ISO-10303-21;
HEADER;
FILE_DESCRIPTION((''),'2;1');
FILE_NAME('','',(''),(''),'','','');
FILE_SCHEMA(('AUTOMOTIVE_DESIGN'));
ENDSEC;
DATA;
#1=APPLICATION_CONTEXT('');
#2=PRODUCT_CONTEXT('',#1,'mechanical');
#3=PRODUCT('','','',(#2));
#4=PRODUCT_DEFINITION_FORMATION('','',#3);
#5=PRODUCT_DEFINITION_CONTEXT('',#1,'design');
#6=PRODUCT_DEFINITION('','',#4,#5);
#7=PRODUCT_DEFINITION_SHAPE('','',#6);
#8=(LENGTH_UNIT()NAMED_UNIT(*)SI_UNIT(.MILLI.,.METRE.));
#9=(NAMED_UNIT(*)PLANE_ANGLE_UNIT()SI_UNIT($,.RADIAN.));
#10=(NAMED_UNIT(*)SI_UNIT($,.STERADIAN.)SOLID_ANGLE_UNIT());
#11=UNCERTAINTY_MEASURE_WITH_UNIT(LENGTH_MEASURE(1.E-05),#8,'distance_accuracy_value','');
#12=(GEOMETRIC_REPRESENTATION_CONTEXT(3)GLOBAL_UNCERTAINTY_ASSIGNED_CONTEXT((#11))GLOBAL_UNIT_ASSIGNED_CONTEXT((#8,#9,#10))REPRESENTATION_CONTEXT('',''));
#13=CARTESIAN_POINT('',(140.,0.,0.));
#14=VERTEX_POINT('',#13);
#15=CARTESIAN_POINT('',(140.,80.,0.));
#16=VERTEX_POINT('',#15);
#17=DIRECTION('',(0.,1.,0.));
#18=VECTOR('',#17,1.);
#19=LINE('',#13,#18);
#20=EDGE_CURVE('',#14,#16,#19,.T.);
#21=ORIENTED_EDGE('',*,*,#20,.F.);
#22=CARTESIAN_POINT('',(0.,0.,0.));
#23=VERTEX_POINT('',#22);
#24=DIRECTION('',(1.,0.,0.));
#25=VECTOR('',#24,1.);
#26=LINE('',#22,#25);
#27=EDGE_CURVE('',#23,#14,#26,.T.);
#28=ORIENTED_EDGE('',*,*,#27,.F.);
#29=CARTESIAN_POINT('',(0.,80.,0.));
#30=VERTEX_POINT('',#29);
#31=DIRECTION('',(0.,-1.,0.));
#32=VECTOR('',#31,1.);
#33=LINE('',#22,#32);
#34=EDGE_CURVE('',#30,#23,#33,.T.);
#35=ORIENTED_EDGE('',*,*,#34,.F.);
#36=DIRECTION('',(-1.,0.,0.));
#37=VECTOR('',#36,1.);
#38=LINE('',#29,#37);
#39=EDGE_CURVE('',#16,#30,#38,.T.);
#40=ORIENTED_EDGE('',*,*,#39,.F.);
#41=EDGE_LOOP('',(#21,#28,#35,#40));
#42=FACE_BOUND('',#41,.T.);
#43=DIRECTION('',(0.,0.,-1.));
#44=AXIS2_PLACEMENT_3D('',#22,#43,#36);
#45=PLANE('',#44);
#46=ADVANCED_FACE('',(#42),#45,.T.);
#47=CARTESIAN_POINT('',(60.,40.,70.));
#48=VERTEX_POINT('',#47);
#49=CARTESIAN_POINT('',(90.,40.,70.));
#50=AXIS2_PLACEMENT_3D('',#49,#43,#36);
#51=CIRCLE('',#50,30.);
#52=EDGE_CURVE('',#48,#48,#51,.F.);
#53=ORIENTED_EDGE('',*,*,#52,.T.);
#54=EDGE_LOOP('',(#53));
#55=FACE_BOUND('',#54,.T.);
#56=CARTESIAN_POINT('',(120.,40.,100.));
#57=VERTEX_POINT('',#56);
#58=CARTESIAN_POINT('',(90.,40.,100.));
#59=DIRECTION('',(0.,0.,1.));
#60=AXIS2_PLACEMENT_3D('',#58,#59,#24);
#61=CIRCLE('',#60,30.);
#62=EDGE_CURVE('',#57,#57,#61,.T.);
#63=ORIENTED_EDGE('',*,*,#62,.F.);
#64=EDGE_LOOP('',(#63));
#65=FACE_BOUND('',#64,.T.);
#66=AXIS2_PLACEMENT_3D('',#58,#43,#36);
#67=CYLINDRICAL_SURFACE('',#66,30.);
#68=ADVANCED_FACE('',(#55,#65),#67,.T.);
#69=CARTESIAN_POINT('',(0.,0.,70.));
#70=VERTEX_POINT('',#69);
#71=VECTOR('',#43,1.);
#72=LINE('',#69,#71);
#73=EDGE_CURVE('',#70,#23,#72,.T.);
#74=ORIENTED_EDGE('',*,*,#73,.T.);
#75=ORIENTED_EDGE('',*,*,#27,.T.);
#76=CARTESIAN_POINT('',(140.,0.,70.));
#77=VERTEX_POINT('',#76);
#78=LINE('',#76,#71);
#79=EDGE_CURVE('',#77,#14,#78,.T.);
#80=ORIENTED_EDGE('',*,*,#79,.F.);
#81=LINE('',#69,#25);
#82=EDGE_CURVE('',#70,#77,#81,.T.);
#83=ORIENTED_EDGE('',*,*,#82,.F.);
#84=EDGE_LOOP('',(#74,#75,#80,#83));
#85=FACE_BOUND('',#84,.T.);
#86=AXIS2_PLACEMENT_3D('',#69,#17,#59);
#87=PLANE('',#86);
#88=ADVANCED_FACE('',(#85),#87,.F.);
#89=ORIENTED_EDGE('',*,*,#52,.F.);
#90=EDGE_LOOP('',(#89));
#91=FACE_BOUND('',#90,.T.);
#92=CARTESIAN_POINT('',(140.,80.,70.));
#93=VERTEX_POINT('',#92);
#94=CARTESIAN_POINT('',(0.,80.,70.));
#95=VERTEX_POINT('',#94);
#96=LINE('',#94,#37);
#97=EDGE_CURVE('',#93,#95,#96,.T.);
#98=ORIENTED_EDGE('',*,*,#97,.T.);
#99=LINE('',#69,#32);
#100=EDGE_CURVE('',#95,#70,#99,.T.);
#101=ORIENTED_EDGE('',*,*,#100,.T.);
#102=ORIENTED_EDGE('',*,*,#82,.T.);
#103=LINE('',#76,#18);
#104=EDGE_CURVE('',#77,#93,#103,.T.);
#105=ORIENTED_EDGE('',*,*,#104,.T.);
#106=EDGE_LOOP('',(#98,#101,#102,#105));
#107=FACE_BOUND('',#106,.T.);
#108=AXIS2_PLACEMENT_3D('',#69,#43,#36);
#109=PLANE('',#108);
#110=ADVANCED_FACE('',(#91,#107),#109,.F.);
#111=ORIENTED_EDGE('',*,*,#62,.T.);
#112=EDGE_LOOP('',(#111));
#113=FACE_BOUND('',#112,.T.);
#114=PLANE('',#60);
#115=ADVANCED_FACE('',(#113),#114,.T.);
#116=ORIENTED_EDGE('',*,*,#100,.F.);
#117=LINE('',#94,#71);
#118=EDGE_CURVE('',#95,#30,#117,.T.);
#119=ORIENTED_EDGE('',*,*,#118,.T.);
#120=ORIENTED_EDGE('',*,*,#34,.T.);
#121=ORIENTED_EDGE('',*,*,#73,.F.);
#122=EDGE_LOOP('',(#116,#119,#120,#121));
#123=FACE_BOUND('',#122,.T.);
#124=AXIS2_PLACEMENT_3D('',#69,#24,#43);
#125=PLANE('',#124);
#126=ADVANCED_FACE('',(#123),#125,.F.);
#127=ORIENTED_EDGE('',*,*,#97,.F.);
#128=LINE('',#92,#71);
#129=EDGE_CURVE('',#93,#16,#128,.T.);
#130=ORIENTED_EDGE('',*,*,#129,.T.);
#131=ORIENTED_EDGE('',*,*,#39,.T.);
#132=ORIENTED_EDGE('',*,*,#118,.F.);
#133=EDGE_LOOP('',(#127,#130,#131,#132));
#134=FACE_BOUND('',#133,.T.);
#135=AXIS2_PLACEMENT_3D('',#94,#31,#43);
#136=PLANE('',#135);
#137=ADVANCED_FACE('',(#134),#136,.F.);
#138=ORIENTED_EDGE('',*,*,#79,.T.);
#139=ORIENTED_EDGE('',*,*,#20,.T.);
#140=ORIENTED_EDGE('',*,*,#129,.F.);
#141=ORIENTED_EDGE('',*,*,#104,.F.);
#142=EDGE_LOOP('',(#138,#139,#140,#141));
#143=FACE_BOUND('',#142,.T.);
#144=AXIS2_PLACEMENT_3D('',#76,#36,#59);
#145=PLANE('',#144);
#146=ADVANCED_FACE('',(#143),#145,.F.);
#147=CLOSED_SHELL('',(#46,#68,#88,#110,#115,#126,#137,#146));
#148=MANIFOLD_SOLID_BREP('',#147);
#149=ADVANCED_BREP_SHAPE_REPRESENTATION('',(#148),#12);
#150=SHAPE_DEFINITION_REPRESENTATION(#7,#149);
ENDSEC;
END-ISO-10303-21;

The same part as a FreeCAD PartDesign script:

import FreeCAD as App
import Part
import Sketcher


def add_polygon(sketch, points):
    """Adds a closed chain of lines whose ends are joined by coincident constraints."""
    first, n = sketch.GeometryCount, len(points)
    for a, b in zip(points, points[1:] + points[:1]):
        sketch.addGeometry(Part.LineSegment(App.Vector(*a, 0), App.Vector(*b, 0)), False)
    for i in range(n):
        sketch.addConstraint(Sketcher.Constraint("Coincident", first + i, 2, first + (i + 1) % n, 1))

doc = App.newDocument("Part")
body = doc.addObject("PartDesign::Body", "Body")

sketch1 = doc.addObject("Sketcher::SketchObject", "Sketch")
body.addObject(sketch1)
sketch1.AttachmentSupport = (doc.XY_Plane, [""])
sketch1.MapMode = "FlatFace"
add_polygon(sketch1, [(0, 80), (0, 0), (140, 0), (140, 80)])
sketch1.addConstraint(Sketcher.Constraint("Vertical", 0))
sketch1.addConstraint(Sketcher.Constraint("Horizontal", 1))
sketch1.addConstraint(Sketcher.Constraint("Vertical", 2))
sketch1.addConstraint(Sketcher.Constraint("Horizontal", 3))
sketch1.addConstraint(Sketcher.Constraint("Coincident", 0, 2, -1, 1))
sketch1.addConstraint(Sketcher.Constraint("DistanceX", 1, 1, 1, 2, 140.0))
sketch1.addConstraint(Sketcher.Constraint("DistanceY", 0, 2, 0, 1, 80.0))
pad1 = doc.addObject("PartDesign::Pad", "Pad")
body.addObject(pad1)
pad1.Profile = sketch1
pad1.Length = 70

sketch2 = doc.addObject("Sketcher::SketchObject", "Sketch001")
body.addObject(sketch2)
sketch2.AttachmentSupport = (doc.XY_Plane, [""])
sketch2.MapMode = "FlatFace"
sketch2.AttachmentOffset = App.Placement(App.Vector(0, 0, 70), App.Rotation())
sketch2.addGeometry(Part.Circle(App.Vector(90, 40, 0), App.Vector(0, 0, 1), 30), False)
sketch2.addConstraint(Sketcher.Constraint("Diameter", 0, 60.0))
sketch2.addConstraint(Sketcher.Constraint("DistanceX", -1, 1, 0, 3, 90.0))
sketch2.addConstraint(Sketcher.Constraint("DistanceY", -1, 1, 0, 3, 40.0))
pad2 = doc.addObject("PartDesign::Pad", "Pad001")
body.addObject(pad2)
pad2.Profile = sketch2
pad2.Length = 30

doc.recompute()
